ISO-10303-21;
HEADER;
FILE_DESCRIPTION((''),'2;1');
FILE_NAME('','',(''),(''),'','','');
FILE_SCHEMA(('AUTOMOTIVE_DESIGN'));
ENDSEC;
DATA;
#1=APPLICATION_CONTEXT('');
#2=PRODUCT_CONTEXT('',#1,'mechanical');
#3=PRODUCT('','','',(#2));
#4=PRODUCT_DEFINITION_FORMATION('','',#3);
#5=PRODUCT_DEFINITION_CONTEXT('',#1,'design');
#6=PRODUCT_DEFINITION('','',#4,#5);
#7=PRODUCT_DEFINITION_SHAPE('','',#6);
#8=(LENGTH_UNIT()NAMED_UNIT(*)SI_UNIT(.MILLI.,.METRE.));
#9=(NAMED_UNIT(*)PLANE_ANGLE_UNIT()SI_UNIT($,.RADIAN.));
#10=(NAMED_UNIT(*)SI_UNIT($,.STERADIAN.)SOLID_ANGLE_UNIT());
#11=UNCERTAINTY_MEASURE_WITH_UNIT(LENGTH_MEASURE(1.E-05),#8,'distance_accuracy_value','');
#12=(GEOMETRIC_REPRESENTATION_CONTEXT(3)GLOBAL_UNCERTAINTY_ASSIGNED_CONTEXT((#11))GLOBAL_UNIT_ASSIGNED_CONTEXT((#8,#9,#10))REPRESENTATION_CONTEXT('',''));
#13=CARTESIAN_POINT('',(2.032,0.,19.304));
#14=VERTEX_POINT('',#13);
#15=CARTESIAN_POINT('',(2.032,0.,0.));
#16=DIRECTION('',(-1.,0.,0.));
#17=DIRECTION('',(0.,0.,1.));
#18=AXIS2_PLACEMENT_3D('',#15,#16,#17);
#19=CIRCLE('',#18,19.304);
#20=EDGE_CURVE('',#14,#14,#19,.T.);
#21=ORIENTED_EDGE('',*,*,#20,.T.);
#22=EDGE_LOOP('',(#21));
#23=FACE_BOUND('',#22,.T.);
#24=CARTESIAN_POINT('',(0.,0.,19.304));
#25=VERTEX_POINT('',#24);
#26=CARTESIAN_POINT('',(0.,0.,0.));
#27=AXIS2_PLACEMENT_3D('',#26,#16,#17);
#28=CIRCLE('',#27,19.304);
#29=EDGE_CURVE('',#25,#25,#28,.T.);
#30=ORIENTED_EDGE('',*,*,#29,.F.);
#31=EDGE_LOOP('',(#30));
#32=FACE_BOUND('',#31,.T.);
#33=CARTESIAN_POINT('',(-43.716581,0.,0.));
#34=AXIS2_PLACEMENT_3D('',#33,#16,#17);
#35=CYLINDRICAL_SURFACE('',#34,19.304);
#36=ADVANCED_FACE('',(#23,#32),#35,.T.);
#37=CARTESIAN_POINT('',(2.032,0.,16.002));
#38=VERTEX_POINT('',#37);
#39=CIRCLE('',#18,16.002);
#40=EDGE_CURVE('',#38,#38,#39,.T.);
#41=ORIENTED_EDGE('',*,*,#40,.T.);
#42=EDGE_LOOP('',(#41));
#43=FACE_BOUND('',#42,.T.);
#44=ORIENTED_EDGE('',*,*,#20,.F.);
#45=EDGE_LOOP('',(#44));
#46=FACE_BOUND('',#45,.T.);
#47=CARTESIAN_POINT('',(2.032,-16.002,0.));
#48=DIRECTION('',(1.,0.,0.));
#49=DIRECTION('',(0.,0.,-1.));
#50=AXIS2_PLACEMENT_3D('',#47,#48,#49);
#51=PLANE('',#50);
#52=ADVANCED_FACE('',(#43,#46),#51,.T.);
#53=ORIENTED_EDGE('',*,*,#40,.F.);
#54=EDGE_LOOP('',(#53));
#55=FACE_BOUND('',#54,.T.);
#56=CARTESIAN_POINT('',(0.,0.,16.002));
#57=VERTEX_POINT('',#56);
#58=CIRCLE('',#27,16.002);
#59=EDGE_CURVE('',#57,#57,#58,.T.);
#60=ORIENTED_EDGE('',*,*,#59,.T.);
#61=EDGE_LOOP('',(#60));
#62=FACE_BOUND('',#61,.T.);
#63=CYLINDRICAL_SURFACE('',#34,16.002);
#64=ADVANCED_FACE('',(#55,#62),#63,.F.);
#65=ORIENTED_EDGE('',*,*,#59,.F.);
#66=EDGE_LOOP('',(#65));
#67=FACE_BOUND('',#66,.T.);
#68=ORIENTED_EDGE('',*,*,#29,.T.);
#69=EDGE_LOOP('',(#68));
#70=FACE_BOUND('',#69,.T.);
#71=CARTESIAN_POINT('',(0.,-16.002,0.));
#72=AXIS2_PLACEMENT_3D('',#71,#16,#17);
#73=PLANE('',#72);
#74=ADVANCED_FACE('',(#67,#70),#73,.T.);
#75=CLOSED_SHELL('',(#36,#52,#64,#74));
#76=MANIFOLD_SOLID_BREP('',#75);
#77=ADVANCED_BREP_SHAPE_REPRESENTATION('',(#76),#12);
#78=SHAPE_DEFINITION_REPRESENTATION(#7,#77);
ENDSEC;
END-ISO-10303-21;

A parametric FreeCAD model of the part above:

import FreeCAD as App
import Part
import Sketcher
Q = App.Units.Quantity

doc = App.newDocument("Part")
body = doc.addObject("PartDesign::Body", "Body")

sketch1 = body.newObject("Sketcher::SketchObject", "Sketch")
sketch1.AttachmentSupport = (doc.getObject("XY_Plane"), [""])
sketch1.MapMode = "FlatFace"
sketch1.addGeometry(Part.LineSegment(App.Vector(0, -16, 0), App.Vector(0, -19.3, 0)), False)
sketch1.addGeometry(Part.LineSegment(App.Vector(0, -19.3, 0), App.Vector(2, -19.3, 0)), False)
sketch1.addGeometry(Part.LineSegment(App.Vector(2, -19.3, 0), App.Vector(2, -16, 0)), False)
sketch1.addGeometry(Part.LineSegment(App.Vector(2, -16, 0), App.Vector(0, -16, 0)), False)
sketch1.addConstraint(Sketcher.Constraint("Coincident", 0, 2, 1, 1))
sketch1.addConstraint(Sketcher.Constraint("Coincident", 1, 2, 2, 1))
sketch1.addConstraint(Sketcher.Constraint("Coincident", 2, 2, 3, 1))
sketch1.addConstraint(Sketcher.Constraint("Coincident", 3, 2, 0, 1))
sketch1.addConstraint(Sketcher.Constraint("Vertical", 0))
sketch1.addConstraint(Sketcher.Constraint("Horizontal", 1))
sketch1.addConstraint(Sketcher.Constraint("Vertical", 2))
sketch1.addConstraint(Sketcher.Constraint("Horizontal", 3))
sketch1.addConstraint(Sketcher.Constraint("PointOnObject", 0, 2, -2))
sketch1.addConstraint(Sketcher.Constraint("DistanceX", 1, 1, 1, 2, Q("0.08 in")))
sketch1.addConstraint(Sketcher.Constraint("DistanceY", 0, 2, 0, 1, Q("0.13 in")))
sketch1.addConstraint(Sketcher.Constraint("DistanceY", 0, 2, -1, 1, Q("0.76 in")))
revolution = body.newObject("PartDesign::Revolution", "Revolution")
revolution.Profile = sketch1
revolution.ReferenceAxis = (sketch1, ["H_Axis"])
revolution.Angle = 360

doc.recompute()
